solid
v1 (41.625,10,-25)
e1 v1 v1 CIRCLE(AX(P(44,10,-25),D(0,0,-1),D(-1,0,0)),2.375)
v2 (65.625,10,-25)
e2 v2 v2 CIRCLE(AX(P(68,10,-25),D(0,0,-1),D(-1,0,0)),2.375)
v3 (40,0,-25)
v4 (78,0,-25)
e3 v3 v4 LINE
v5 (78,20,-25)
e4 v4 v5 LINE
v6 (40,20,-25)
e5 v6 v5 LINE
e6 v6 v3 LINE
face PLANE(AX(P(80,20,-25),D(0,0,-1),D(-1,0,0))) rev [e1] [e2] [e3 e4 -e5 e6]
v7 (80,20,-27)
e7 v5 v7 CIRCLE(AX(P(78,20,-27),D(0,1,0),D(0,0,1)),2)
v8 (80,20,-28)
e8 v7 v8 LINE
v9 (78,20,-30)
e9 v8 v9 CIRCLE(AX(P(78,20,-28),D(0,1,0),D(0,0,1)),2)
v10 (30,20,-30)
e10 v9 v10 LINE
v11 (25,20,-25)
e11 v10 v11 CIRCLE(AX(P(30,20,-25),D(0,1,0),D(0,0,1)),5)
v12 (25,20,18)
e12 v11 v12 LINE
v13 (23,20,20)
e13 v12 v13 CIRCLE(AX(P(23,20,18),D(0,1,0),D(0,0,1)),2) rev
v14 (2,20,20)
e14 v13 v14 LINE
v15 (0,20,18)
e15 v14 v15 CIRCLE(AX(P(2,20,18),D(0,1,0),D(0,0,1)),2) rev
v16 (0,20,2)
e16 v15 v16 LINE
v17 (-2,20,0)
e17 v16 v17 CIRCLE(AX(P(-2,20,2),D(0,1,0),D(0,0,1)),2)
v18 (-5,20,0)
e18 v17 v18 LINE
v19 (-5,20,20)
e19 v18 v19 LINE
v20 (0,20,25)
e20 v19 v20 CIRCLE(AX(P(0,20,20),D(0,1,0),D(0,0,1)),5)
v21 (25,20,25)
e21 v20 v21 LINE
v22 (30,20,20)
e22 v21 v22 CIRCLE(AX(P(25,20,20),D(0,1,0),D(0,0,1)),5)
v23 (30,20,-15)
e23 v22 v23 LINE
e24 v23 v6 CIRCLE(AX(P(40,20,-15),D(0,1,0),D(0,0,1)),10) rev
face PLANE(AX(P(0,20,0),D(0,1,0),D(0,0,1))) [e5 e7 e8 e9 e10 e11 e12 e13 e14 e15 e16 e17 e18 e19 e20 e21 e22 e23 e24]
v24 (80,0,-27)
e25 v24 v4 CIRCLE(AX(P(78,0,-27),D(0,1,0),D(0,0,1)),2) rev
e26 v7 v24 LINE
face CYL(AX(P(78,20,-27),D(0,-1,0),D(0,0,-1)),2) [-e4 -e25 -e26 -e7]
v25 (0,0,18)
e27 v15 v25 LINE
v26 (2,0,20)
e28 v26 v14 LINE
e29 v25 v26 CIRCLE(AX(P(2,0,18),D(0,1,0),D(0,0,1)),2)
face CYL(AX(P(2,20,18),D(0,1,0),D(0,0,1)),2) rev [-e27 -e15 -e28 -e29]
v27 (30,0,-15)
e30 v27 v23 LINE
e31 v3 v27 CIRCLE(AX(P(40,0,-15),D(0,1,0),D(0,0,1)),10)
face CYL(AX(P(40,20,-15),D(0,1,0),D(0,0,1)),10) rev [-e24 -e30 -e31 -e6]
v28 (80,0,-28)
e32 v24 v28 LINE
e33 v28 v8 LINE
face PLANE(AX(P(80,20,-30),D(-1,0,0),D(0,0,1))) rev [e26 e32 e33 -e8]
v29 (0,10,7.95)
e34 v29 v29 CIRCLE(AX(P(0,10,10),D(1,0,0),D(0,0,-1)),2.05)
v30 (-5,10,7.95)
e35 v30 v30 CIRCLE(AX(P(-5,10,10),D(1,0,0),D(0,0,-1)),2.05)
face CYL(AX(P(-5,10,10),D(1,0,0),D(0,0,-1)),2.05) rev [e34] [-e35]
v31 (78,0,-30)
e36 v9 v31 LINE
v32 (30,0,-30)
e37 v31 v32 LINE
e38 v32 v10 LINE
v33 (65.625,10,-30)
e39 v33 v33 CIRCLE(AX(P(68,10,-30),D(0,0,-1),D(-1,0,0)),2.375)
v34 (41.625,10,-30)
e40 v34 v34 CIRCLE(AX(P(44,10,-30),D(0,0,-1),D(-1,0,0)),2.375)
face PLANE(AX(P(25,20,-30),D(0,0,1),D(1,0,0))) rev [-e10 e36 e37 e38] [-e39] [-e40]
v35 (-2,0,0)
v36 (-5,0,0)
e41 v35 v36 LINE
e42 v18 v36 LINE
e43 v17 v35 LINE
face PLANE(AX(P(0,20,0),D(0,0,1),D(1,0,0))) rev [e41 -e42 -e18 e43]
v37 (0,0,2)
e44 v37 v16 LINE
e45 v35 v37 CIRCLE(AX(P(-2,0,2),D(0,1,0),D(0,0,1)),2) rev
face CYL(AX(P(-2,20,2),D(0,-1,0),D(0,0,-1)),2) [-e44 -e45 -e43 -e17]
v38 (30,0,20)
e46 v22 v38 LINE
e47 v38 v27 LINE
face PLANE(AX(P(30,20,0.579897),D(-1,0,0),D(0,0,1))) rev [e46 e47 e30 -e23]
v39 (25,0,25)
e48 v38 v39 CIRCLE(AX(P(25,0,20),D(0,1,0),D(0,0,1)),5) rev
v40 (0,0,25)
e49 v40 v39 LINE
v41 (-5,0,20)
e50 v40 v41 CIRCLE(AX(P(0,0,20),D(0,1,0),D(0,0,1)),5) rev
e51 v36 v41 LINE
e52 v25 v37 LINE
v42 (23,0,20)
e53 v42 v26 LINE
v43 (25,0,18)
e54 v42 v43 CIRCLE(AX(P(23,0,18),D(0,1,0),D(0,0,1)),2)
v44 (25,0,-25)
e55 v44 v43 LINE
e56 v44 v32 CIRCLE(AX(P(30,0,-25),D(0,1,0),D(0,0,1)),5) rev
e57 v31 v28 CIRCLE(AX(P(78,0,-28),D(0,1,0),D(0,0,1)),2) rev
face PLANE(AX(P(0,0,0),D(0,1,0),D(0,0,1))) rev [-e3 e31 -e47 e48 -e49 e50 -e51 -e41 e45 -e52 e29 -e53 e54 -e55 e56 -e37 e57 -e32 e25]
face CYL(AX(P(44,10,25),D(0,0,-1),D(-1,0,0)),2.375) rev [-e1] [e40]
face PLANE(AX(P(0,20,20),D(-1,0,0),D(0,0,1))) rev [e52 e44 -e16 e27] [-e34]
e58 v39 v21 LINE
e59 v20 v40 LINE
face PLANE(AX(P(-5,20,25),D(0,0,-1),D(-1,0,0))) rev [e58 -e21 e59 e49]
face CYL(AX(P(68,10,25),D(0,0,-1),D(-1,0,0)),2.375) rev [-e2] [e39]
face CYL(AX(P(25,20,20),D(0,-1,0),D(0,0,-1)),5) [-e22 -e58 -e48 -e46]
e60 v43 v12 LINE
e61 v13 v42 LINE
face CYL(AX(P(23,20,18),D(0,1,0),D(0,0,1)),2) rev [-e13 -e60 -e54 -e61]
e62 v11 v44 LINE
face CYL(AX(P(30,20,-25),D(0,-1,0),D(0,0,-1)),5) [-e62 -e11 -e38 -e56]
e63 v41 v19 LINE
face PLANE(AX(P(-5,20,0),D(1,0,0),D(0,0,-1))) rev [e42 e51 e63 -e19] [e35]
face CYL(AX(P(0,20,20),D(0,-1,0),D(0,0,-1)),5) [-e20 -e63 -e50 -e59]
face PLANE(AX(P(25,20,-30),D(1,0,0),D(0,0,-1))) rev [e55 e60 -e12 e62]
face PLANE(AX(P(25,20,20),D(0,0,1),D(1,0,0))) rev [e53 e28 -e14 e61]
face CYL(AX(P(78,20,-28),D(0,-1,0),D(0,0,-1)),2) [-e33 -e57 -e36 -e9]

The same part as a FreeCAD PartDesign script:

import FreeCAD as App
import Part
import Sketcher
from FreeCAD import Vector


def edges_at(feature, points):
    """Names of the edges that pass closest to the given points."""
    edges = feature.Shape.Edges
    near = lambda p: min(range(len(edges)), key=lambda i: edges[i].distToShape(Part.Vertex(*p))[0])
    return sorted({f"Edge{near(p) + 1}" for p in points})


def add_polygon(sketch, points):
    """Adds a closed chain of lines whose ends are joined by coincident constraints."""
    first, n = sketch.GeometryCount, len(points)
    for a, b in zip(points, points[1:] + points[:1]):
        sketch.addGeometry(Part.LineSegment(App.Vector(*a, 0), App.Vector(*b, 0)), False)
    for i in range(n):
        sketch.addConstraint(Sketcher.Constraint("Coincident", first + i, 2, first + (i + 1) % n, 1))

doc = App.newDocument("Part")
body = doc.addObject("PartDesign::Body", "Body")

# Sketch on XZ plane
sketch1 = doc.addObject("Sketcher::SketchObject", "Sketch")
body.addObject(sketch1)
sketch1.AttachmentSupport = (doc.XZ_Plane, [""])
sketch1.MapMode = "FlatFace"
add_polygon(sketch1, [(0, 0), (-5, 0), (-5, 25), (30, 25), (30, -25), (80, -25), (80, -30), (25, -30), (25, 20), (0, 20)])  # lines 0-9
sketch1.addConstraint([
    Sketcher.Constraint("Horizontal", 0),
    Sketcher.Constraint("Vertical", 1),
    Sketcher.Constraint("Horizontal", 2),
    Sketcher.Constraint("Vertical", 3),
    Sketcher.Constraint("Horizontal", 4),
    Sketcher.Constraint("Vertical", 5),
    Sketcher.Constraint("Horizontal", 6),
    Sketcher.Constraint("Vertical", 7),
    Sketcher.Constraint("Horizontal", 8),
    Sketcher.Constraint("Vertical", 9),
    Sketcher.Constraint("Coincident", 9, 2, -1, 1),
    Sketcher.Constraint("Equal", 8, 1),
    Sketcher.Constraint("Equal", 4, 3),
    Sketcher.Constraint("Equal", 0, 5),
    Sketcher.Constraint("Equal", 3, 7),
    Sketcher.Constraint("DistanceX", 0, 2, 0, 1, 5.0),
    Sketcher.Constraint("DistanceX", 2, 1, 2, 2, 35.0),
    Sketcher.Constraint("DistanceX", 4, 1, 4, 2, 50.0),
    Sketcher.Constraint("DistanceX", 6, 2, 6, 1, 55.0),
])
pad1 = doc.addObject("PartDesign::Pad", "Pad")
body.addObject(pad1)
pad1.Profile = sketch1
pad1.Length = 20
pad1.Reversed = True

# Sketch on YZ plane
sketch2 = doc.addObject("Sketcher::SketchObject", "Sketch001")
body.addObject(sketch2)
sketch2.AttachmentSupport = (doc.YZ_Plane, [""])
sketch2.MapMode = "FlatFace"
sketch2.addGeometry(Part.Circle(Vector(10, 10, 0), Vector(0, 0, 1), 2), False)
sketch2.addConstraint([
    Sketcher.Constraint("Diameter", 0, 4.1),
    Sketcher.Constraint("DistanceX", -1, 1, 0, 3, 10.0),
    Sketcher.Constraint("DistanceY", -1, 1, 0, 3, 10.0),
])
pocket1 = doc.addObject("PartDesign::Pocket", "Pocket")
body.addObject(pocket1)
pocket1.Profile = sketch2
pocket1.Type = "ThroughAll"

# Sketch on XY plane
sketch3 = doc.addObject("Sketcher::SketchObject", "Sketch002")
body.addObject(sketch3)
sketch3.AttachmentSupport = (doc.XY_Plane, [""])
sketch3.MapMode = "FlatFace"
sketch3.AttachmentOffset = App.Placement(Vector(0, 0, -30), App.Rotation())
sketch3.addGeometry([
    Part.Circle(Vector(68, 10, 0), Vector(0, 0, 1), 2.4),
    Part.Circle(Vector(44, 10, 0), Vector(0, 0, 1), 2.4),
], False)
sketch3.addConstraint([
    Sketcher.Constraint("Equal", 0, 1),
    Sketcher.Constraint("Horizontal", 0, 3, 1, 3),
    Sketcher.Constraint("Diameter", 0, 4.75),
    Sketcher.Constraint("DistanceX", -1, 1, 0, 3, 68.0),
    Sketcher.Constraint("DistanceY", -1, 1, 0, 3, 10.0),
    Sketcher.Constraint("DistanceX", -1, 1, 1, 3, 44.0),
])
pocket2 = doc.addObject("PartDesign::Pocket", "Pocket001")
body.addObject(pocket2)
pocket2.Profile = sketch3
pocket2.Type = "ThroughAll"
pocket2.Reversed = True
doc.recompute()

fillet = doc.addObject("PartDesign::Fillet", "Fillet")
body.addObject(fillet)
fillet.Base = (pocket2, edges_at(pocket2, [(30, 10, -25)]))
fillet.Radius = 10
doc.recompute()

fillet2 = doc.addObject("PartDesign::Fillet", "Fillet001")
body.addObject(fillet2)
fillet2.Base = (fillet, edges_at(fillet, [(25, 10, -30), (30, 10, 25), (-5, 10, 25)]))
fillet2.Radius = 5
doc.recompute()

fillet3 = doc.addObject("PartDesign::Fillet", "Fillet002")
body.addObject(fillet3)
fillet3.Base = (fillet2, edges_at(fillet2, [
    (0, 10, 20),
    (25, 10, 20),
    (80, 10, -30),
    (80, 10, -25),
    (0, 10, 0),
]))
fillet3.Radius = 2

doc.recompute()
